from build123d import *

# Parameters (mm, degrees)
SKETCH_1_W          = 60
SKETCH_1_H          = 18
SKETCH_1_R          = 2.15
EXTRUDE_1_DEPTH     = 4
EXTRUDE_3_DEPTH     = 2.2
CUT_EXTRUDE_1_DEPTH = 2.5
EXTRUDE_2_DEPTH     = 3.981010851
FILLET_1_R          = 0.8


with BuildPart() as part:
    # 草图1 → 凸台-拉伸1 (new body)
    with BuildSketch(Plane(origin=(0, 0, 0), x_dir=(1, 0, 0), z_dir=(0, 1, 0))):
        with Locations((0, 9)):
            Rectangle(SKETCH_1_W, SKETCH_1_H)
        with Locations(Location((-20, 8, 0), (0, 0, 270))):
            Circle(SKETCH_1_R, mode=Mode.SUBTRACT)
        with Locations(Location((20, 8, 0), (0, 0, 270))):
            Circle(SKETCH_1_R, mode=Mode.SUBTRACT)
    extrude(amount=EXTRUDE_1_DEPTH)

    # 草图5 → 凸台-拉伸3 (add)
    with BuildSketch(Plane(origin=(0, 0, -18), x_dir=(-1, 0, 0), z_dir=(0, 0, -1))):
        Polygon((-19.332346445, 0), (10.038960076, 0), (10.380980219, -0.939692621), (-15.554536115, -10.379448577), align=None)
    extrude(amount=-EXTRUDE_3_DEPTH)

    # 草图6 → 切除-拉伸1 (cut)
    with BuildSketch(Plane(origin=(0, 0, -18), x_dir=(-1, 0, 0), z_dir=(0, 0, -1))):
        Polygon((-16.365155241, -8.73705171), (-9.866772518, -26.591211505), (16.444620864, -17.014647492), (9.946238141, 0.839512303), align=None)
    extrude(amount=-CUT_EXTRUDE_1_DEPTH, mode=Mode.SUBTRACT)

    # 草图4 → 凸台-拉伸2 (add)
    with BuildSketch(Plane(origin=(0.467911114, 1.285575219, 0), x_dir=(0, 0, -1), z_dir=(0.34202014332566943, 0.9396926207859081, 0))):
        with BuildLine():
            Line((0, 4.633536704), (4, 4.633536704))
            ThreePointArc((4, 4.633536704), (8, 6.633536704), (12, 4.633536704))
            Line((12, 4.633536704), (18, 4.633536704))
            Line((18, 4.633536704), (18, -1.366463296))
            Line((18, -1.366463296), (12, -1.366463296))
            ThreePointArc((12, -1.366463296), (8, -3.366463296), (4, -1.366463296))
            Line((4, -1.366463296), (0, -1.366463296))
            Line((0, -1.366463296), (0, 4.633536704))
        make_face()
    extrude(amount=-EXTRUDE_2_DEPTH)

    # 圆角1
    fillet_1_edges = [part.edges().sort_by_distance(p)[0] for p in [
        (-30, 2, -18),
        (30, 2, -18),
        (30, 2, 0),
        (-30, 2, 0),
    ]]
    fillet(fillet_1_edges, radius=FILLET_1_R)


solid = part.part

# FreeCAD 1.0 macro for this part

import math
import FreeCAD as App
import Part
import Sketcher
Q = App.Units.Quantity


def edges_at(feature, points):
    """Names of the edges that pass closest to the given points."""
    edges = feature.Shape.Edges
    near = lambda p: min(range(len(edges)), key=lambda i: edges[i].distToShape(Part.Vertex(*p))[0])
    return sorted({f"Edge{near(p) + 1}" for p in points})

doc = App.newDocument("Part")
body = doc.addObject("PartDesign::Body", "Body")

# Sketch on XZ plane
sketch1 = body.newObject("Sketcher::SketchObject", "Sketch")
sketch1.AttachmentSupport = (doc.getObject("XZ_Plane"), [""])
sketch1.MapMode = "FlatFace"
sketch1.addGeometry([
    Part.LineSegment(App.Vector(-30, -18, 0), App.Vector(-30, 0, 0)),  # 0
    Part.LineSegment(App.Vector(-30, 0, 0), App.Vector(30, 0, 0)),  # 1
    Part.LineSegment(App.Vector(30, 0, 0), App.Vector(30, -18, 0)),  # 2
    Part.LineSegment(App.Vector(30, -18, 0), App.Vector(-30, -18, 0)),  # 3
    Part.Circle(App.Vector(-20, -8, 0), App.Vector(0, 0, 1), 2.1),  # 4
    Part.Circle(App.Vector(20, -8, 0), App.Vector(0, 0, 1), 2.1),  # 5
], False)
sketch1.addConstraint([
    Sketcher.Constraint("Coincident", 0, 2, 1, 1),
    Sketcher.Constraint("Coincident", 1, 2, 2, 1),
    Sketcher.Constraint("Coincident", 2, 2, 3, 1),
    Sketcher.Constraint("Coincident", 3, 2, 0, 1),
    Sketcher.Constraint("Vertical", 0),
    Sketcher.Constraint("Horizontal", 1),
    Sketcher.Constraint("Vertical", 2),
    Sketcher.Constraint("Horizontal", 3),
    Sketcher.Constraint("Equal", 4, 5),
    Sketcher.Constraint("Symmetric", 0, 2, 1, 2, -1, 1),
    Sketcher.Constraint("Symmetric", 4, 3, 5, 3, -2),
    Sketcher.Constraint("Diameter", 4, 4.3),
    Sketcher.Constraint("DistanceX", 1, 1, 1, 2, 60.0),
    Sketcher.Constraint("DistanceY", 0, 1, 0, 2, 18.0),
    Sketcher.Constraint("DistanceX", 4, 3, -1, 1, 20.0),
    Sketcher.Constraint("DistanceY", 4, 3, -1, 1, 8.0),
])
pad1 = body.newObject("PartDesign::Pad", "Pad")
pad1.Profile = sketch1
pad1.Length = 4
pad1.Reversed = True

# Sketch on XY plane
sketch2 = body.newObject("Sketcher::SketchObject", "Sketch001")
sketch2.AttachmentSupport = (doc.getObject("XY_Plane"), [""])
sketch2.MapMode = "FlatFace"
sketch2.AttachmentOffset = App.Placement(App.Vector(0, 0, -18), App.Rotation())
sketch2.addGeometry([
    Part.LineSegment(App.Vector(-10, 0, 0), App.Vector(19.3, 0, 0)),
    Part.LineSegment(App.Vector(19.3, 0, 0), App.Vector(15.6, -10.4, 0)),
    Part.LineSegment(App.Vector(15.6, -10.4, 0), App.Vector(-10.4, -0.9, 0)),
    Part.LineSegment(App.Vector(-10.4, -0.9, 0), App.Vector(-10, 0, 0)),
], False)
sketch2.addConstraint([
    Sketcher.Constraint("Coincident", 0, 2, 1, 1),
    Sketcher.Constraint("Coincident", 1, 2, 2, 1),
    Sketcher.Constraint("Coincident", 2, 2, 3, 1),
    Sketcher.Constraint("Coincident", 3, 2, 0, 1),
    Sketcher.Constraint("Horizontal", 0),
    Sketcher.Constraint("PointOnObject", 0, 2, -1),
    Sketcher.Constraint("Perpendicular", 1, 2),
    Sketcher.Constraint("Perpendicular", 2, 3),
    Sketcher.Constraint("Angle", 1, Q("-110 deg")),
    Sketcher.Constraint("Distance", 3, 1.0),
    Sketcher.Constraint("Distance", 2, 27.6),
    Sketcher.Constraint("DistanceX", 2, 2, -1, 1, 10.38098),
])
pad2 = body.newObject("PartDesign::Pad", "Pad001")
pad2.Profile = sketch2
pad2.Length = 2.2

# Sketch on XY plane
sketch3 = body.newObject("Sketcher::SketchObject", "Sketch002")
sketch3.AttachmentSupport = (doc.getObject("XY_Plane"), [""])
sketch3.MapMode = "FlatFace"
sketch3.AttachmentOffset = App.Placement(App.Vector(0, 0, -18), App.Rotation())
sketch3.addGeometry([
    Part.LineSegment(App.Vector(16, -9, 0), App.Vector(10, -27, 0)),
    Part.LineSegment(App.Vector(10, -27, 0), App.Vector(-16, -17, 0)),
    Part.LineSegment(App.Vector(-16, -17, 0), App.Vector(-10, 1, 0)),
    Part.LineSegment(App.Vector(-10, 1, 0), App.Vector(16, -9, 0)),
], False)
sketch3.addConstraint([
    Sketcher.Constraint("Coincident", 0, 2, 1, 1),
    Sketcher.Constraint("Coincident", 1, 2, 2, 1),
    Sketcher.Constraint("Coincident", 2, 2, 3, 1),
    Sketcher.Constraint("Coincident", 3, 2, 0, 1),
    Sketcher.Constraint("Perpendicular", 0, 1),
    Sketcher.Constraint("Perpendicular", 1, 2),
    Sketcher.Constraint("Perpendicular", 2, 3),
    Sketcher.Constraint("Angle", 0, Q("-110 deg")),
    Sketcher.Constraint("Distance", 0, 19.0),
    Sketcher.Constraint("Distance", 1, 28.0),
    Sketcher.Constraint("DistanceY", 0, 2, -1, 1, 26.591212),
    Sketcher.Constraint("DistanceX", 1, 2, -1, 1, 16.444621),
])
pocket1 = body.newObject("PartDesign::Pocket", "Pocket")
pocket1.Profile = sketch3
pocket1.Length = 2.5
pocket1.Reversed = True

# Sketch on an angled plane
sketch4 = body.newObject("Sketcher::SketchObject", "Sketch003")
sketch4.Placement = App.Placement(App.Vector(0.467911, 1.285575, 0), App.Rotation(App.Vector(0, 0, -1), App.Vector(-0.939692621, 0.342020143, 0), App.Vector(0.342020143, 0.939692621, 0), "ZXY"))
sketch4.addGeometry([
    Part.LineSegment(App.Vector(4, 4.6, 0), App.Vector(0, 4.6, 0)),  # 0
    Part.LineSegment(App.Vector(0, 4.6, 0), App.Vector(0, -1.4, 0)),  # 1
    Part.LineSegment(App.Vector(0, -1.4, 0), App.Vector(4, -1.4, 0)),  # 2
    Part.ArcOfCircle(Part.Circle(App.Vector(8, 1.6, 0), App.Vector(0, 0, 1), 5), math.radians(-143), math.radians(-37)),  # 3
    Part.LineSegment(App.Vector(12, -1.4, 0), App.Vector(18, -1.4, 0)),  # 4
    Part.LineSegment(App.Vector(18, -1.4, 0), App.Vector(18, 4.6, 0)),  # 5
    Part.LineSegment(App.Vector(18, 4.6, 0), App.Vector(12, 4.6, 0)),  # 6
    Part.ArcOfCircle(Part.Circle(App.Vector(8, 1.6, 0), App.Vector(0, 0, 1), 5), math.radians(37), math.radians(143)),  # 7
], False)
sketch4.addConstraint([
    Sketcher.Constraint("Coincident", 0, 2, 1, 1),
    Sketcher.Constraint("Coincident", 1, 2, 2, 1),
    Sketcher.Constraint("Coincident", 2, 2, 3, 1),
    Sketcher.Constraint("Coincident", 3, 2, 4, 1),
    Sketcher.Constraint("Coincident", 4, 2, 5, 1),
    Sketcher.Constraint("Coincident", 5, 2, 6, 1),
    Sketcher.Constraint("Coincident", 6, 2, 7, 1),
    Sketcher.Constraint("Coincident", 7, 2, 0, 1),
    Sketcher.Constraint("Horizontal", 0),
    Sketcher.Constraint("Vertical", 1),
    Sketcher.Constraint("Horizontal", 2),
    Sketcher.Constraint("Horizontal", 4),
    Sketcher.Constraint("Vertical", 5),
    Sketcher.Constraint("Horizontal", 6),
    Sketcher.Constraint("Coincident", 7, 3, 3, 3),
    Sketcher.Constraint("Equal", 3, 7),
    Sketcher.Constraint("PointOnObject", 0, 2, -2),
    Sketcher.Constraint("Horizontal", 2, 2, 3, 2),
    Sketcher.Constraint("Horizontal", 0, 2, 5, 2),
    Sketcher.Constraint("Vertical", 3, 2, 6, 2),
    Sketcher.Constraint("Equal", 6, 1),
    Sketcher.Constraint("Radius", 3, 5.0),
    Sketcher.Constraint("DistanceX", 0, 2, 0, 1, 4.0),
    Sketcher.Constraint("DistanceX", 4, 1, 4, 2, 6.0),
    Sketcher.Constraint("DistanceY", -1, 1, 3, 3, 1.633537),
])
pad3 = body.newObject("PartDesign::Pad", "Pad002")
pad3.Profile = sketch4
pad3.Length = 3.981011
pad3.Reversed = True
doc.recompute()

fillet = body.newObject("PartDesign::Fillet", "Fillet")
fillet.Base = (pad3, edges_at(pad3, [
    (-30, 2, -18),
    (30, 2, -18),
    (30, 2, 0),
    (-30, 2, 0),
]))
fillet.Radius = 0.8

doc.recompute()
